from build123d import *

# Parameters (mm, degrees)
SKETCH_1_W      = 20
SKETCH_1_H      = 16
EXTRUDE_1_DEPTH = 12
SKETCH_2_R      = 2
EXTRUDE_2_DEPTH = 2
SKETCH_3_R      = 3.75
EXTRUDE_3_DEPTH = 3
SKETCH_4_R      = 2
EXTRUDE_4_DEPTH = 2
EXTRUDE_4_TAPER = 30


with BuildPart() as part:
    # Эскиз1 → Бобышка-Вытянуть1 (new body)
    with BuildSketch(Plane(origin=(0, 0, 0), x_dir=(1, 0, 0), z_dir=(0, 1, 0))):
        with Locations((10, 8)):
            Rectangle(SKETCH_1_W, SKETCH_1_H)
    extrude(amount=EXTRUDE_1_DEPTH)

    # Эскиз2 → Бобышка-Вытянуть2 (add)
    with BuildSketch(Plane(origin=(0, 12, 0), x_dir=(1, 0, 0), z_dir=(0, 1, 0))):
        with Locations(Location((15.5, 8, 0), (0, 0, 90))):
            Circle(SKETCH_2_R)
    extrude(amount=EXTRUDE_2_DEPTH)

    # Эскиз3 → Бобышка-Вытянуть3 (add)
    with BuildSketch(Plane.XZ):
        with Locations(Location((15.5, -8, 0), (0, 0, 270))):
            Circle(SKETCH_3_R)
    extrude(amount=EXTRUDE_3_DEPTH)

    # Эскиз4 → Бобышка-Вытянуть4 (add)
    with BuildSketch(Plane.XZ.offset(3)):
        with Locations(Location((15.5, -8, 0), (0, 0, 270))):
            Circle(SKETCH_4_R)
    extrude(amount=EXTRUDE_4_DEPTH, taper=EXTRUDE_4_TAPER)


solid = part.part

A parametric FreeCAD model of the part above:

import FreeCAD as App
import Part
import Sketcher
from FreeCAD import Vector
Q = App.Units.Quantity


def add_polygon(sketch, points):
    """Adds a closed chain of lines whose ends are joined by coincident constraints."""
    first, n = sketch.GeometryCount, len(points)
    for a, b in zip(points, points[1:] + points[:1]):
        sketch.addGeometry(Part.LineSegment(App.Vector(*a, 0), App.Vector(*b, 0)), False)
    for i in range(n):
        sketch.addConstraint(Sketcher.Constraint("Coincident", first + i, 2, first + (i + 1) % n, 1))

doc = App.newDocument("Part")
body = doc.addObject("PartDesign::Body", "Body")

sketch1 = body.newObject("Sketcher::SketchObject", "Sketch")
sketch1.AttachmentSupport = (doc.getObject("XZ_Plane"), [""])
sketch1.MapMode = "FlatFace"
add_polygon(sketch1, [(0, -16), (0, 0), (20, 0), (20, -16)])
sketch1.addConstraint(Sketcher.Constraint("Vertical", 0))
sketch1.addConstraint(Sketcher.Constraint("Horizontal", 1))
sketch1.addConstraint(Sketcher.Constraint("Vertical", 2))
sketch1.addConstraint(Sketcher.Constraint("Horizontal", 3))
sketch1.addConstraint(Sketcher.Constraint("Coincident", 0, 2, -1, 1))
sketch1.addConstraint(Sketcher.Constraint("DistanceX", 1, 1, 1, 2, Q("20 mm")))
sketch1.addConstraint(Sketcher.Constraint("DistanceY", 0, 1, 0, 2, Q("16 mm")))
pad1 = body.newObject("PartDesign::Pad", "Pad")
pad1.Profile = sketch1
pad1.Length = 12
pad1.Reversed = True

sketch2 = body.newObject("Sketcher::SketchObject", "Sketch001")
sketch2.AttachmentSupport = (doc.getObject("XZ_Plane"), [""])
sketch2.MapMode = "FlatFace"
sketch2.AttachmentOffset = App.Placement(Vector(0, 0, -12), App.Rotation())
sketch2.addGeometry(Part.Circle(Vector(15.5, -8, 0), Vector(0, 0, 1), 2), False)
sketch2.addConstraint(Sketcher.Constraint("Diameter", 0, Q("4 mm")))
sketch2.addConstraint(Sketcher.Constraint("DistanceY", 0, 3, -1, 1, Q("8 mm")))
sketch2.addConstraint(Sketcher.Constraint("DistanceX", -1, 1, 0, 3, Q("15.5 mm")))
pad2 = body.newObject("PartDesign::Pad", "Pad001")
pad2.Profile = sketch2
pad2.Length = 2
pad2.Reversed = True

sketch3 = body.newObject("Sketcher::SketchObject", "Sketch002")
sketch3.AttachmentSupport = (doc.getObject("XZ_Plane"), [""])
sketch3.MapMode = "FlatFace"
sketch3.addGeometry(Part.Circle(Vector(15.5, -8, 0), Vector(0, 0, 1), 3.8), False)
sketch3.addConstraint(Sketcher.Constraint("Diameter", 0, Q("7.5 mm")))
sketch3.addConstraint(Sketcher.Constraint("DistanceY", 0, 3, -1, 1, Q("8 mm")))
sketch3.addConstraint(Sketcher.Constraint("DistanceX", -1, 1, 0, 3, Q("15.5 mm")))
pad3 = body.newObject("PartDesign::Pad", "Pad002")
pad3.Profile = sketch3
pad3.Length = 3

sketch4 = body.newObject("Sketcher::SketchObject", "Sketch003")
sketch4.AttachmentSupport = (doc.getObject("XZ_Plane"), [""])
sketch4.MapMode = "FlatFace"
sketch4.AttachmentOffset = App.Placement(Vector(0, 0, 3), App.Rotation())
sketch4.addGeometry(Part.Circle(Vector(15.5, -8, 0), Vector(0, 0, 1), 2), False)
sketch4.addConstraint(Sketcher.Constraint("Diameter", 0, Q("4 mm")))
sketch4.addConstraint(Sketcher.Constraint("DistanceY", 0, 3, -1, 1, Q("8 mm")))
sketch4.addConstraint(Sketcher.Constraint("DistanceX", -1, 1, 0, 3, Q("15.5 mm")))
pad4 = body.newObject("PartDesign::Pad", "Pad003")
pad4.Profile = sketch4
pad4.Length = 2
pad4.TaperAngle = -30

doc.recompute()
